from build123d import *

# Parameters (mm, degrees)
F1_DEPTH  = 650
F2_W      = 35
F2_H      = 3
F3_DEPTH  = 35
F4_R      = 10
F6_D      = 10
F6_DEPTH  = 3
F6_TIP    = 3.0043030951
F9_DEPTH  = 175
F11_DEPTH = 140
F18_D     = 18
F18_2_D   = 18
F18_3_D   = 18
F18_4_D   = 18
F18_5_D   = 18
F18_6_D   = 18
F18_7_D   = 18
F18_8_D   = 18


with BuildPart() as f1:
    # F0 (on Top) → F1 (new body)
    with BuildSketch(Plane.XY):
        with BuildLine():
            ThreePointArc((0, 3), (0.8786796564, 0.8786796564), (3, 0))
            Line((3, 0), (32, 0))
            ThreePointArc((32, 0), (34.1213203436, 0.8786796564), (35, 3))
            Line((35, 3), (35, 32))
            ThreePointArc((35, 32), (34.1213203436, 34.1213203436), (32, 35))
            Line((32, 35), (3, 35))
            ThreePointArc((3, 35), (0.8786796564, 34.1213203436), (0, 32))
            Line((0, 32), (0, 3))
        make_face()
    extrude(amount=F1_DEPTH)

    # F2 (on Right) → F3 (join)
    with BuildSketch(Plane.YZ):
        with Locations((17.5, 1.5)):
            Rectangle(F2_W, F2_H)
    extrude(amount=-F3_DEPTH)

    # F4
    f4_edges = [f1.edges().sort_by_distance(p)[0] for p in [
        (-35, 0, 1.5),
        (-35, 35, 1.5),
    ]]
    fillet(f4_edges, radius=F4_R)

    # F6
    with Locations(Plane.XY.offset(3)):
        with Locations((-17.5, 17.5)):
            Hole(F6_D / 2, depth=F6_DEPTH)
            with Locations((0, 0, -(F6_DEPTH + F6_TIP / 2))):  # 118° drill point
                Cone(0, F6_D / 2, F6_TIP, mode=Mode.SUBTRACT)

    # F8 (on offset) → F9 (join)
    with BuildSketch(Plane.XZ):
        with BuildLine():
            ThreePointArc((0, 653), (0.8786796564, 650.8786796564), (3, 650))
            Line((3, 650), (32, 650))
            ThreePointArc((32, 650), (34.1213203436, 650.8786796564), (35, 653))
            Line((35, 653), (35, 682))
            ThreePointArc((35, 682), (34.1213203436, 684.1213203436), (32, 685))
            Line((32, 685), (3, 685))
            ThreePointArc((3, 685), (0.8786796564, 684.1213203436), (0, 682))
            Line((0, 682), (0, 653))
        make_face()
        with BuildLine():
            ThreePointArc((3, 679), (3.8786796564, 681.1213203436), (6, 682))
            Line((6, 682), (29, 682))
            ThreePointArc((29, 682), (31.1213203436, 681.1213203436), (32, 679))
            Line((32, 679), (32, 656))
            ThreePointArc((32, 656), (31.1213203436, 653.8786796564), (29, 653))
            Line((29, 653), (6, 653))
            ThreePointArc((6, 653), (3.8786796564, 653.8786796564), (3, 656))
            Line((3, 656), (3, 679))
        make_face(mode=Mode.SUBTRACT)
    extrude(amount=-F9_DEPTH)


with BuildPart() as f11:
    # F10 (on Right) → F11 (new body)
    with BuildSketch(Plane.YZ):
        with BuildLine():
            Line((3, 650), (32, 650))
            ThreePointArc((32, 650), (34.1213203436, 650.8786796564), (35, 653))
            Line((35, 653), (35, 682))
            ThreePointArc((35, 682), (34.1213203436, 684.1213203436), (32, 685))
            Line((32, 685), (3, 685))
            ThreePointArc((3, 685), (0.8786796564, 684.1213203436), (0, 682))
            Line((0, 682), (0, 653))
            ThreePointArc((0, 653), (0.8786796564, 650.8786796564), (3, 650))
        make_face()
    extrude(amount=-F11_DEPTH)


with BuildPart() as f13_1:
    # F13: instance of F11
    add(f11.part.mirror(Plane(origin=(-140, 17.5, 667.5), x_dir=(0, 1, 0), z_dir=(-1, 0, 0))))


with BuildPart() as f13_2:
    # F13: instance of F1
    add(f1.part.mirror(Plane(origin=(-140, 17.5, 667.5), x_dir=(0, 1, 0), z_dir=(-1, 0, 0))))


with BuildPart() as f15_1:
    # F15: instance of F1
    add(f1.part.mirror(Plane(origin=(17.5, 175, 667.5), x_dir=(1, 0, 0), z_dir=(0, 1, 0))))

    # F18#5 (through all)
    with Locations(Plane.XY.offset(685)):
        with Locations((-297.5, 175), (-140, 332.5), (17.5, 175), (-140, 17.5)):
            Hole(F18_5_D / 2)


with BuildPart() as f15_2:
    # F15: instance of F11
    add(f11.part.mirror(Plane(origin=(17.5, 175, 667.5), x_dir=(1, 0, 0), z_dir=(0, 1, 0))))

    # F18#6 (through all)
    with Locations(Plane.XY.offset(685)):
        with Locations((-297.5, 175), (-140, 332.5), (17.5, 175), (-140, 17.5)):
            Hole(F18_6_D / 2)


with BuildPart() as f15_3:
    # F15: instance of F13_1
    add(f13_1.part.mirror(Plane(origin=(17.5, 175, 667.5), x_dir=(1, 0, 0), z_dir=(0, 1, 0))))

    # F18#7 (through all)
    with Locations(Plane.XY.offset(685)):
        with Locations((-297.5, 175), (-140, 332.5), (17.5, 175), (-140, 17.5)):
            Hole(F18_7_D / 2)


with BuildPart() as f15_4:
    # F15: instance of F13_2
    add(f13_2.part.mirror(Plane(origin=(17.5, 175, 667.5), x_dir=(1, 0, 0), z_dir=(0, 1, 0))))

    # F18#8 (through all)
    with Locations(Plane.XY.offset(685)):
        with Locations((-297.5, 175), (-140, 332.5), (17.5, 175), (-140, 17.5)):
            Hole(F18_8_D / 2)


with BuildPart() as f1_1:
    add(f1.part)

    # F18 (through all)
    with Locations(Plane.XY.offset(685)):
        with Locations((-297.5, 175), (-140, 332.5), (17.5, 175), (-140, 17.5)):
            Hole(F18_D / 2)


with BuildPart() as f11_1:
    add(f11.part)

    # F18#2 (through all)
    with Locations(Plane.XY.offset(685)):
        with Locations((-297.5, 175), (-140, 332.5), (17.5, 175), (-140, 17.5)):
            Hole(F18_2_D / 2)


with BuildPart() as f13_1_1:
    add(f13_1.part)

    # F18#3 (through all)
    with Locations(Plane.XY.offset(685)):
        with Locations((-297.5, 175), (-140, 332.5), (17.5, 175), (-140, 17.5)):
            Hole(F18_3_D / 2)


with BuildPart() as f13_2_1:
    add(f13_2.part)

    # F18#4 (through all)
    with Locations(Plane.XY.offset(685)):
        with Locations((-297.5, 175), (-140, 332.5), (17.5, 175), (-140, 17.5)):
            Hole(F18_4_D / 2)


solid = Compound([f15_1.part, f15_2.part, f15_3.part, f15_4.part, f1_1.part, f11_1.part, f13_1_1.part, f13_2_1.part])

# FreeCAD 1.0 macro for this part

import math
import FreeCAD as App
import Part
import Sketcher
Q = App.Units.Quantity


def edges_at(feature, points):
    """Names of the edges that pass closest to the given points."""
    edges = feature.Shape.Edges
    near = lambda p: min(range(len(edges)), key=lambda i: edges[i].distToShape(Part.Vertex(*p))[0])
    return sorted({f"Edge{near(p) + 1}" for p in points})

doc = App.newDocument("Part")
params = doc.addObject("Spreadsheet::Sheet", "Params")
for row, (alias, value) in enumerate([
    ("sketch1_radius", "3 mm"),
    ("sketch1_width", "29 mm"),
    ("pad1_length", "650 mm"),
    ("sketch2_width", "35 mm"),
    ("sketch2_height", "3 mm"),
    ("pad2_length", "35 mm"),
    ("fillet_radius", "10 mm"),
    ("sketch3_diameter", "10 mm"),
    ("hole_diameter", "10 mm"),
    ("hole_depth", "3 mm"),
    ("sketch4_radius", "3 mm"),
    ("sketch4_width", "29 mm"),
    ("pad3_length", "175 mm"),
    ("sketch5_radius", "3 mm"),
    ("sketch5_width", "29 mm"),
    ("pad4_length", "140 mm"),
    ("sketch6_diameter", "18 mm"),
    ("hole2_diameter", "18 mm"),
    ("sketch7_diameter", "18 mm"),
    ("hole3_diameter", "18 mm"),
    ("sketch8_diameter", "18 mm"),
    ("hole4_diameter", "18 mm"),
    ("sketch9_diameter", "18 mm"),
    ("hole5_diameter", "18 mm"),
    ("sketch10_diameter", "18 mm"),
    ("hole6_diameter", "18 mm"),
    ("sketch11_diameter", "18 mm"),
    ("hole7_diameter", "18 mm"),
    ("sketch12_diameter", "18 mm"),
    ("hole8_diameter", "18 mm"),
    ("sketch13_diameter", "18 mm"),
    ("hole9_diameter", "18 mm"),
], start=1):
    params.set(f"A{row}", alias)
    params.set(f"B{row}", "=" + value)
    params.setAlias(f"B{row}", alias)

body = doc.addObject("PartDesign::Body", "Body")

sketch1 = body.newObject("Sketcher::SketchObject", "Sketch")
sketch1.AttachmentSupport = (doc.getObject("XY_Plane"), [""])
sketch1.MapMode = "FlatFace"
sketch1.addGeometry([
    Part.ArcOfCircle(Part.Circle(App.Vector(3, 3, 0), App.Vector(0, 0, 1), 3), math.radians(180), math.radians(270)),
    Part.LineSegment(App.Vector(3, 0, 0), App.Vector(32, 0, 0)),
    Part.ArcOfCircle(Part.Circle(App.Vector(32, 3, 0), App.Vector(0, 0, 1), 3), math.radians(-90), math.radians(0)),
    Part.LineSegment(App.Vector(35, 3, 0), App.Vector(35, 32, 0)),
    Part.ArcOfCircle(Part.Circle(App.Vector(32, 32, 0), App.Vector(0, 0, 1), 3), math.radians(0), math.radians(90)),
    Part.LineSegment(App.Vector(32, 35, 0), App.Vector(3, 35, 0)),
    Part.ArcOfCircle(Part.Circle(App.Vector(3, 32, 0), App.Vector(0, 0, 1), 3), math.radians(90), math.radians(180)),
    Part.LineSegment(App.Vector(0, 32, 0), App.Vector(0, 3, 0)),
], False)
sketch1.addConstraint([
    Sketcher.Constraint("Tangent", 0, 2, 1, 1),
    Sketcher.Constraint("Tangent", 1, 2, 2, 1),
    Sketcher.Constraint("Tangent", 2, 2, 3, 1),
    Sketcher.Constraint("Tangent", 3, 2, 4, 1),
    Sketcher.Constraint("Tangent", 4, 2, 5, 1),
    Sketcher.Constraint("Tangent", 5, 2, 6, 1),
    Sketcher.Constraint("Tangent", 6, 2, 7, 1),
    Sketcher.Constraint("Tangent", 7, 2, 0, 1),
    Sketcher.Constraint("Horizontal", 1),
    Sketcher.Constraint("Vertical", 3),
    Sketcher.Constraint("Horizontal", 5),
    Sketcher.Constraint("Vertical", 7),
    Sketcher.Constraint("Equal", 0, 2),
    Sketcher.Constraint("Equal", 2, 4),
    Sketcher.Constraint("Equal", 4, 6),
    Sketcher.Constraint("PointOnObject", 0, 2, -1),
    Sketcher.Constraint("PointOnObject", 6, 2, -2),
    Sketcher.Constraint("Equal", 5, 3),
    Sketcher.Constraint("Radius", 0, Q("3 mm")),
    Sketcher.Constraint("DistanceX", 1, 1, 1, 2, Q("29 mm")),
])
sketch1.setExpression("Constraints[18]", "Params.sketch1_radius")
sketch1.setExpression("Constraints[19]", "Params.sketch1_width")
pad1 = body.newObject("PartDesign::Pad", "Pad")
pad1.Profile = sketch1
pad1.setExpression("Length", "Params.pad1_length")

sketch2 = body.newObject("Sketcher::SketchObject", "Sketch001")
sketch2.AttachmentSupport = (doc.getObject("YZ_Plane"), [""])
sketch2.MapMode = "FlatFace"
sketch2.addGeometry([
    Part.LineSegment(App.Vector(0, 3, 0), App.Vector(0, 0, 0)),
    Part.LineSegment(App.Vector(0, 0, 0), App.Vector(35, 0, 0)),
    Part.LineSegment(App.Vector(35, 0, 0), App.Vector(35, 3, 0)),
    Part.LineSegment(App.Vector(35, 3, 0), App.Vector(0, 3, 0)),
], False)
sketch2.addConstraint([
    Sketcher.Constraint("Coincident", 0, 2, 1, 1),
    Sketcher.Constraint("Coincident", 1, 2, 2, 1),
    Sketcher.Constraint("Coincident", 2, 2, 3, 1),
    Sketcher.Constraint("Coincident", 3, 2, 0, 1),
    Sketcher.Constraint("Vertical", 0),
    Sketcher.Constraint("Horizontal", 1),
    Sketcher.Constraint("Vertical", 2),
    Sketcher.Constraint("Horizontal", 3),
    Sketcher.Constraint("Coincident", 0, 2, -1, 1),
    Sketcher.Constraint("DistanceX", 1, 1, 1, 2, Q("35 mm")),
    Sketcher.Constraint("DistanceY", 0, 2, 0, 1, Q("3 mm")),
])
sketch2.setExpression("Constraints[9]", "Params.sketch2_width")
sketch2.setExpression("Constraints[10]", "Params.sketch2_height")
pad2 = body.newObject("PartDesign::Pad", "Pad001")
pad2.Profile = sketch2
pad2.setExpression("Length", "Params.pad2_length")
pad2.Reversed = True
doc.recompute()

fillet = body.newObject("PartDesign::Fillet", "Fillet")
fillet.Base = (pad2, edges_at(pad2, [(-35, 0, 1.5), (-35, 35, 1.5)]))
fillet.setExpression("Radius", "Params.fillet_radius")

sketch3 = body.newObject("Sketcher::SketchObject", "Sketch002")
sketch3.AttachmentSupport = (doc.getObject("XY_Plane"), [""])
sketch3.MapMode = "FlatFace"
sketch3.AttachmentOffset = App.Placement(App.Vector(0, 0, 3), App.Rotation())
sketch3.addGeometry(Part.Circle(App.Vector(-18, 18, 0), App.Vector(0, 0, 1), 5), False)
sketch3.addConstraint([
    Sketcher.Constraint("Diameter", 0, Q("10 mm")),
    Sketcher.Constraint("DistanceX", 0, 3, -1, 1, Q("17.5 mm")),
    Sketcher.Constraint("DistanceY", -1, 1, 0, 3, Q("17.5 mm")),
])
sketch3.setExpression("Constraints[0]", "Params.sketch3_diameter")
doc.recompute()
hole = body.newObject("PartDesign::Hole", "Hole")
hole.Profile = sketch3
hole.ThreadType = "None"
hole.setExpression("Diameter", "Params.hole_diameter")
hole.DepthType = "Dimension"
hole.setExpression("Depth", "Params.hole_depth")
hole.DrillPoint = "Angled"
hole.DrillPointAngle = 118

sketch4 = body.newObject("Sketcher::SketchObject", "Sketch003")
sketch4.AttachmentSupport = (doc.getObject("XZ_Plane"), [""])
sketch4.MapMode = "FlatFace"
sketch4.addGeometry([
    Part.ArcOfCircle(Part.Circle(App.Vector(3, 653, 0), App.Vector(0, 0, 1), 3), math.radians(180), math.radians(270)),
    Part.LineSegment(App.Vector(3, 650, 0), App.Vector(32, 650, 0)),
    Part.ArcOfCircle(Part.Circle(App.Vector(32, 653, 0), App.Vector(0, 0, 1), 3), math.radians(-90), math.radians(0)),
    Part.LineSegment(App.Vector(35, 653, 0), App.Vector(35, 682, 0)),
    Part.ArcOfCircle(Part.Circle(App.Vector(32, 682, 0), App.Vector(0, 0, 1), 3), math.radians(0), math.radians(90)),
    Part.LineSegment(App.Vector(32, 685, 0), App.Vector(3, 685, 0)),
    Part.ArcOfCircle(Part.Circle(App.Vector(3, 682, 0), App.Vector(0, 0, 1), 3), math.radians(90), math.radians(180)),
    Part.LineSegment(App.Vector(0, 682, 0), App.Vector(0, 653, 0)),
    Part.LineSegment(App.Vector(3, 656, 0), App.Vector(3, 679, 0)),
    Part.ArcOfCircle(Part.Circle(App.Vector(6, 679, 0), App.Vector(0, 0, 1), 3), math.radians(90), math.radians(180)),
    Part.LineSegment(App.Vector(6, 682, 0), App.Vector(29, 682, 0)),
    Part.ArcOfCircle(Part.Circle(App.Vector(29, 679, 0), App.Vector(0, 0, 1), 3), math.radians(0), math.radians(90)),
    Part.LineSegment(App.Vector(32, 679, 0), App.Vector(32, 656, 0)),
    Part.ArcOfCircle(Part.Circle(App.Vector(29, 656, 0), App.Vector(0, 0, 1), 3), math.radians(-90), math.radians(0)),
    Part.LineSegment(App.Vector(29, 653, 0), App.Vector(6, 653, 0)),
    Part.ArcOfCircle(Part.Circle(App.Vector(6, 656, 0), App.Vector(0, 0, 1), 3), math.radians(180), math.radians(270)),
], False)
sketch4.addConstraint([
    Sketcher.Constraint("Tangent", 0, 2, 1, 1),
    Sketcher.Constraint("Tangent", 1, 2, 2, 1),
    Sketcher.Constraint("Tangent", 2, 2, 3, 1),
    Sketcher.Constraint("Tangent", 3, 2, 4, 1),
    Sketcher.Constraint("Tangent", 4, 2, 5, 1),
    Sketcher.Constraint("Tangent", 5, 2, 6, 1),
    Sketcher.Constraint("Tangent", 6, 2, 7, 1),
    Sketcher.Constraint("Tangent", 7, 2, 0, 1),
    Sketcher.Constraint("Tangent", 8, 2, 9, 2),
    Sketcher.Constraint("Tangent", 9, 1, 10, 1),
    Sketcher.Constraint("Tangent", 10, 2, 11, 2),
    Sketcher.Constraint("Tangent", 11, 1, 12, 1),
    Sketcher.Constraint("Tangent", 12, 2, 13, 2),
    Sketcher.Constraint("Tangent", 13, 1, 14, 1),
    Sketcher.Constraint("Tangent", 14, 2, 15, 2),
    Sketcher.Constraint("Tangent", 15, 1, 8, 1),
    Sketcher.Constraint("Horizontal", 1),
    Sketcher.Constraint("Vertical", 3),
    Sketcher.Constraint("Horizontal", 5),
    Sketcher.Constraint("Vertical", 7),
    Sketcher.Constraint("Vertical", 8),
    Sketcher.Constraint("Horizontal", 10),
    Sketcher.Constraint("Vertical", 12),
    Sketcher.Constraint("Horizontal", 14),
    Sketcher.Constraint("Equal", 0, 2),
    Sketcher.Constraint("Equal", 2, 4),
    Sketcher.Constraint("Equal", 4, 6),
    Sketcher.Constraint("Equal", 6, 9),
    Sketcher.Constraint("Equal", 9, 11),
    Sketcher.Constraint("Equal", 11, 13),
    Sketcher.Constraint("Equal", 13, 15),
    Sketcher.Constraint("PointOnObject", 6, 2, -2),
    Sketcher.Constraint("Horizontal", 6, 2, 9, 1),
    Sketcher.Constraint("Horizontal", 7, 2, 13, 1),
    Sketcher.Constraint("Vertical", 5, 2, 8, 2),
    Sketcher.Constraint("Vertical", 4, 2, 11, 1),
    Sketcher.Constraint("Equal", 5, 3),
    Sketcher.Constraint("Radius", 0, Q("3 mm")),
    Sketcher.Constraint("DistanceX", 1, 1, 1, 2, Q("29 mm")),
    Sketcher.Constraint("DistanceY", -1, 1, 0, 3, Q("653 mm")),
])
sketch4.setExpression("Constraints[37]", "Params.sketch4_radius")
sketch4.setExpression("Constraints[38]", "Params.sketch4_width")
pad3 = body.newObject("PartDesign::Pad", "Pad002")
pad3.Profile = sketch4
pad3.setExpression("Length", "Params.pad3_length")
pad3.Reversed = True
body2 = doc.addObject("PartDesign::Body", "Body001")

sketch5 = body2.newObject("Sketcher::SketchObject", "Sketch004")
sketch5.AttachmentSupport = (doc.getObject("YZ_Plane001"), [""])
sketch5.MapMode = "FlatFace"
sketch5.addGeometry([
    Part.LineSegment(App.Vector(3, 650, 0), App.Vector(32, 650, 0)),
    Part.ArcOfCircle(Part.Circle(App.Vector(32, 653, 0), App.Vector(0, 0, 1), 3), math.radians(-90), math.radians(0)),
    Part.LineSegment(App.Vector(35, 653, 0), App.Vector(35, 682, 0)),
    Part.ArcOfCircle(Part.Circle(App.Vector(32, 682, 0), App.Vector(0, 0, 1), 3), math.radians(0), math.radians(90)),
    Part.LineSegment(App.Vector(32, 685, 0), App.Vector(3, 685, 0)),
    Part.ArcOfCircle(Part.Circle(App.Vector(3, 682, 0), App.Vector(0, 0, 1), 3), math.radians(90), math.radians(180)),
    Part.LineSegment(App.Vector(0, 682, 0), App.Vector(0, 653, 0)),
    Part.ArcOfCircle(Part.Circle(App.Vector(3, 653, 0), App.Vector(0, 0, 1), 3), math.radians(180), math.radians(270)),
], False)
sketch5.addConstraint([
    Sketcher.Constraint("Tangent", 0, 2, 1, 1),
    Sketcher.Constraint("Tangent", 1, 2, 2, 1),
    Sketcher.Constraint("Tangent", 2, 2, 3, 1),
    Sketcher.Constraint("Tangent", 3, 2, 4, 1),
    Sketcher.Constraint("Tangent", 4, 2, 5, 1),
    Sketcher.Constraint("Tangent", 5, 2, 6, 1),
    Sketcher.Constraint("Tangent", 6, 2, 7, 1),
    Sketcher.Constraint("Tangent", 7, 2, 0, 1),
    Sketcher.Constraint("Horizontal", 0),
    Sketcher.Constraint("Vertical", 2),
    Sketcher.Constraint("Horizontal", 4),
    Sketcher.Constraint("Vertical", 6),
    Sketcher.Constraint("Equal", 1, 3),
    Sketcher.Constraint("Equal", 3, 5),
    Sketcher.Constraint("Equal", 5, 7),
    Sketcher.Constraint("PointOnObject", 5, 2, -2),
    Sketcher.Constraint("Equal", 4, 2),
    Sketcher.Constraint("Radius", 1, Q("3 mm")),
    Sketcher.Constraint("DistanceX", 0, 1, 0, 2, Q("29 mm")),
    Sketcher.Constraint("DistanceY", -1, 1, 1, 3, Q("653 mm")),
])
sketch5.setExpression("Constraints[17]", "Params.sketch5_radius")
sketch5.setExpression("Constraints[18]", "Params.sketch5_width")
pad4 = body2.newObject("PartDesign::Pad", "Pad003")
pad4.Profile = sketch5
pad4.setExpression("Length", "Params.pad4_length")
pad4.Reversed = True
body3 = doc.addObject("PartDesign::Body", "Body002")
doc.recompute()

mirroring = doc.addObject("Part::Mirroring", "Mirroring")
mirroring.Source = body2
mirroring.Base = App.Vector(-140, 17.5, 667.5)
mirroring.Normal = App.Vector(-1, 0, 0)
body3.BaseFeature = mirroring
doc.recompute()
body4 = doc.addObject("PartDesign::Body", "Body003")
doc.recompute()

mirroring2 = doc.addObject("Part::Mirroring", "Mirroring001")
mirroring2.Source = body
mirroring2.Base = App.Vector(-140, 17.5, 667.5)
mirroring2.Normal = App.Vector(-1, 0, 0)
body4.BaseFeature = mirroring2
doc.recompute()
body5 = doc.addObject("PartDesign::Body", "Body004")
doc.recompute()

mirroring3 = doc.addObject("Part::Mirroring", "Mirroring002")
mirroring3.Source = body
mirroring3.Base = App.Vector(17.5, 175, 667.5)
mirroring3.Normal = App.Vector(0, 1, 0)
body5.BaseFeature = mirroring3
doc.recompute()

sketch6 = body5.newObject("Sketcher::SketchObject", "Sketch005")
sketch6.AttachmentSupport = (doc.getObject("XY_Plane004"), [""])
sketch6.MapMode = "FlatFace"
sketch6.AttachmentOffset = App.Placement(App.Vector(0, 0, 685), App.Rotation())
sketch6.addGeometry([
    Part.Circle(App.Vector(-298, 175, 0), App.Vector(0, 0, 1), 9),
    Part.Circle(App.Vector(-140, 332, 0), App.Vector(0, 0, 1), 9),
    Part.Circle(App.Vector(18, 175, 0), App.Vector(0, 0, 1), 9),
    Part.Circle(App.Vector(-140, 18, 0), App.Vector(0, 0, 1), 9),
], False)
sketch6.addConstraint([
    Sketcher.Constraint("Equal", 0, 1),
    Sketcher.Constraint("Equal", 1, 2),
    Sketcher.Constraint("Equal", 2, 3),
    Sketcher.Constraint("Horizontal", 0, 3, 2, 3),
    Sketcher.Constraint("Vertical", 1, 3, 3, 3),
    Sketcher.Constraint("Diameter", 0, Q("18 mm")),
    Sketcher.Constraint("DistanceY", -1, 1, 0, 3, Q("175 mm")),
    Sketcher.Constraint("DistanceX", 1, 3, -1, 1, Q("140 mm")),
    Sketcher.Constraint("DistanceX", 0, 3, 2, 3, Q("315 mm")),
    Sketcher.Constraint("DistanceY", 3, 3, 1, 3, Q("315 mm")),
    Sketcher.Constraint("DistanceX", 0, 3, -1, 1, Q("297.5 mm")),
    Sketcher.Constraint("DistanceY", -1, 1, 1, 3, Q("332.5 mm")),
])
sketch6.setExpression("Constraints[5]", "Params.sketch6_diameter")
doc.recompute()
hole2 = body5.newObject("PartDesign::Hole", "Hole001")
hole2.Profile = sketch6
hole2.ThreadType = "None"
hole2.setExpression("Diameter", "Params.hole2_diameter")
hole2.DepthType = "ThroughAll"
body6 = doc.addObject("PartDesign::Body", "Body005")
doc.recompute()

mirroring4 = doc.addObject("Part::Mirroring", "Mirroring003")
mirroring4.Source = body2
mirroring4.Base = App.Vector(17.5, 175, 667.5)
mirroring4.Normal = App.Vector(0, 1, 0)
body6.BaseFeature = mirroring4
doc.recompute()

sketch7 = body6.newObject("Sketcher::SketchObject", "Sketch006")
sketch7.AttachmentSupport = (doc.getObject("XY_Plane005"), [""])
sketch7.MapMode = "FlatFace"
sketch7.AttachmentOffset = App.Placement(App.Vector(0, 0, 685), App.Rotation())
sketch7.addGeometry([
    Part.Circle(App.Vector(-298, 175, 0), App.Vector(0, 0, 1), 9),
    Part.Circle(App.Vector(-140, 332, 0), App.Vector(0, 0, 1), 9),
    Part.Circle(App.Vector(18, 175, 0), App.Vector(0, 0, 1), 9),
    Part.Circle(App.Vector(-140, 18, 0), App.Vector(0, 0, 1), 9),
], False)
sketch7.addConstraint([
    Sketcher.Constraint("Equal", 0, 1),
    Sketcher.Constraint("Equal", 1, 2),
    Sketcher.Constraint("Equal", 2, 3),
    Sketcher.Constraint("Horizontal", 0, 3, 2, 3),
    Sketcher.Constraint("Vertical", 1, 3, 3, 3),
    Sketcher.Constraint("Diameter", 0, Q("18 mm")),
    Sketcher.Constraint("DistanceY", -1, 1, 0, 3, Q("175 mm")),
    Sketcher.Constraint("DistanceX", 1, 3, -1, 1, Q("140 mm")),
    Sketcher.Constraint("DistanceX", 0, 3, 2, 3, Q("315 mm")),
    Sketcher.Constraint("DistanceY", 3, 3, 1, 3, Q("315 mm")),
    Sketcher.Constraint("DistanceX", 0, 3, -1, 1, Q("297.5 mm")),
    Sketcher.Constraint("DistanceY", -1, 1, 1, 3, Q("332.5 mm")),
])
sketch7.setExpression("Constraints[5]", "Params.sketch7_diameter")
doc.recompute()
hole3 = body6.newObject("PartDesign::Hole", "Hole002")
hole3.Profile = sketch7
hole3.ThreadType = "None"
hole3.setExpression("Diameter", "Params.hole3_diameter")
hole3.DepthType = "ThroughAll"
body7 = doc.addObject("PartDesign::Body", "Body006")
doc.recompute()

mirroring5 = doc.addObject("Part::Mirroring", "Mirroring004")
mirroring5.Source = body3
mirroring5.Base = App.Vector(17.5, 175, 667.5)
mirroring5.Normal = App.Vector(0, 1, 0)
body7.BaseFeature = mirroring5
doc.recompute()

sketch8 = body7.newObject("Sketcher::SketchObject", "Sketch007")
sketch8.AttachmentSupport = (doc.getObject("XY_Plane006"), [""])
sketch8.MapMode = "FlatFace"
sketch8.AttachmentOffset = App.Placement(App.Vector(0, 0, 685), App.Rotation())
sketch8.addGeometry([
    Part.Circle(App.Vector(-298, 175, 0), App.Vector(0, 0, 1), 9),
    Part.Circle(App.Vector(-140, 332, 0), App.Vector(0, 0, 1), 9),
    Part.Circle(App.Vector(18, 175, 0), App.Vector(0, 0, 1), 9),
    Part.Circle(App.Vector(-140, 18, 0), App.Vector(0, 0, 1), 9),
], False)
sketch8.addConstraint([
    Sketcher.Constraint("Equal", 0, 1),
    Sketcher.Constraint("Equal", 1, 2),
    Sketcher.Constraint("Equal", 2, 3),
    Sketcher.Constraint("Horizontal", 0, 3, 2, 3),
    Sketcher.Constraint("Vertical", 1, 3, 3, 3),
    Sketcher.Constraint("Diameter", 0, Q("18 mm")),
    Sketcher.Constraint("DistanceY", -1, 1, 0, 3, Q("175 mm")),
    Sketcher.Constraint("DistanceX", 1, 3, -1, 1, Q("140 mm")),
    Sketcher.Constraint("DistanceX", 0, 3, 2, 3, Q("315 mm")),
    Sketcher.Constraint("DistanceY", 3, 3, 1, 3, Q("315 mm")),
    Sketcher.Constraint("DistanceX", 0, 3, -1, 1, Q("297.5 mm")),
    Sketcher.Constraint("DistanceY", -1, 1, 1, 3, Q("332.5 mm")),
])
sketch8.setExpression("Constraints[5]", "Params.sketch8_diameter")
doc.recompute()
hole4 = body7.newObject("PartDesign::Hole", "Hole003")
hole4.Profile = sketch8
hole4.ThreadType = "None"
hole4.setExpression("Diameter", "Params.hole4_diameter")
hole4.DepthType = "ThroughAll"
body8 = doc.addObject("PartDesign::Body", "Body007")
doc.recompute()

mirroring6 = doc.addObject("Part::Mirroring", "Mirroring005")
mirroring6.Source = body4
mirroring6.Base = App.Vector(17.5, 175, 667.5)
mirroring6.Normal = App.Vector(0, 1, 0)
body8.BaseFeature = mirroring6
doc.recompute()

sketch9 = body8.newObject("Sketcher::SketchObject", "Sketch008")
sketch9.AttachmentSupport = (doc.getObject("XY_Plane007"), [""])
sketch9.MapMode = "FlatFace"
sketch9.AttachmentOffset = App.Placement(App.Vector(0, 0, 685), App.Rotation())
sketch9.addGeometry([
    Part.Circle(App.Vector(-298, 175, 0), App.Vector(0, 0, 1), 9),
    Part.Circle(App.Vector(-140, 332, 0), App.Vector(0, 0, 1), 9),
    Part.Circle(App.Vector(18, 175, 0), App.Vector(0, 0, 1), 9),
    Part.Circle(App.Vector(-140, 18, 0), App.Vector(0, 0, 1), 9),
], False)
sketch9.addConstraint([
    Sketcher.Constraint("Equal", 0, 1),
    Sketcher.Constraint("Equal", 1, 2),
    Sketcher.Constraint("Equal", 2, 3),
    Sketcher.Constraint("Horizontal", 0, 3, 2, 3),
    Sketcher.Constraint("Vertical", 1, 3, 3, 3),
    Sketcher.Constraint("Diameter", 0, Q("18 mm")),
    Sketcher.Constraint("DistanceY", -1, 1, 0, 3, Q("175 mm")),
    Sketcher.Constraint("DistanceX", 1, 3, -1, 1, Q("140 mm")),
    Sketcher.Constraint("DistanceX", 0, 3, 2, 3, Q("315 mm")),
    Sketcher.Constraint("DistanceY", 3, 3, 1, 3, Q("315 mm")),
    Sketcher.Constraint("DistanceX", 0, 3, -1, 1, Q("297.5 mm")),
    Sketcher.Constraint("DistanceY", -1, 1, 1, 3, Q("332.5 mm")),
])
sketch9.setExpression("Constraints[5]", "Params.sketch9_diameter")
doc.recompute()
hole5 = body8.newObject("PartDesign::Hole", "Hole004")
hole5.Profile = sketch9
hole5.ThreadType = "None"
hole5.setExpression("Diameter", "Params.hole5_diameter")
hole5.DepthType = "ThroughAll"

sketch10 = body.newObject("Sketcher::SketchObject", "Sketch009")
sketch10.AttachmentSupport = (doc.getObject("XY_Plane"), [""])
sketch10.MapMode = "FlatFace"
sketch10.AttachmentOffset = App.Placement(App.Vector(0, 0, 685), App.Rotation())
sketch10.addGeometry([
    Part.Circle(App.Vector(-298, 175, 0), App.Vector(0, 0, 1), 9),
    Part.Circle(App.Vector(-140, 332, 0), App.Vector(0, 0, 1), 9),
    Part.Circle(App.Vector(18, 175, 0), App.Vector(0, 0, 1), 9),
    Part.Circle(App.Vector(-140, 18, 0), App.Vector(0, 0, 1), 9),
], False)
sketch10.addConstraint([
    Sketcher.Constraint("Equal", 0, 1),
    Sketcher.Constraint("Equal", 1, 2),
    Sketcher.Constraint("Equal", 2, 3),
    Sketcher.Constraint("Horizontal", 0, 3, 2, 3),
    Sketcher.Constraint("Vertical", 1, 3, 3, 3),
    Sketcher.Constraint("Diameter", 0, Q("18 mm")),
    Sketcher.Constraint("DistanceY", -1, 1, 0, 3, Q("175 mm")),
    Sketcher.Constraint("DistanceX", 1, 3, -1, 1, Q("140 mm")),
    Sketcher.Constraint("DistanceX", 0, 3, 2, 3, Q("315 mm")),
    Sketcher.Constraint("DistanceY", 3, 3, 1, 3, Q("315 mm")),
    Sketcher.Constraint("DistanceX", 0, 3, -1, 1, Q("297.5 mm")),
    Sketcher.Constraint("DistanceY", -1, 1, 1, 3, Q("332.5 mm")),
])
sketch10.setExpression("Constraints[5]", "Params.sketch10_diameter")
doc.recompute()
hole6 = body.newObject("PartDesign::Hole", "Hole005")
hole6.Profile = sketch10
hole6.ThreadType = "None"
hole6.setExpression("Diameter", "Params.hole6_diameter")
hole6.DepthType = "ThroughAll"

sketch11 = body2.newObject("Sketcher::SketchObject", "Sketch010")
sketch11.AttachmentSupport = (doc.getObject("XY_Plane001"), [""])
sketch11.MapMode = "FlatFace"
sketch11.AttachmentOffset = App.Placement(App.Vector(0, 0, 685), App.Rotation())
sketch11.addGeometry([
    Part.Circle(App.Vector(-298, 175, 0), App.Vector(0, 0, 1), 9),
    Part.Circle(App.Vector(-140, 332, 0), App.Vector(0, 0, 1), 9),
    Part.Circle(App.Vector(18, 175, 0), App.Vector(0, 0, 1), 9),
    Part.Circle(App.Vector(-140, 18, 0), App.Vector(0, 0, 1), 9),
], False)
sketch11.addConstraint([
    Sketcher.Constraint("Equal", 0, 1),
    Sketcher.Constraint("Equal", 1, 2),
    Sketcher.Constraint("Equal", 2, 3),
    Sketcher.Constraint("Horizontal", 0, 3, 2, 3),
    Sketcher.Constraint("Vertical", 1, 3, 3, 3),
    Sketcher.Constraint("Diameter", 0, Q("18 mm")),
    Sketcher.Constraint("DistanceY", -1, 1, 0, 3, Q("175 mm")),
    Sketcher.Constraint("DistanceX", 1, 3, -1, 1, Q("140 mm")),
    Sketcher.Constraint("DistanceX", 0, 3, 2, 3, Q("315 mm")),
    Sketcher.Constraint("DistanceY", 3, 3, 1, 3, Q("315 mm")),
    Sketcher.Constraint("DistanceX", 0, 3, -1, 1, Q("297.5 mm")),
    Sketcher.Constraint("DistanceY", -1, 1, 1, 3, Q("332.5 mm")),
])
sketch11.setExpression("Constraints[5]", "Params.sketch11_diameter")
doc.recompute()
hole7 = body2.newObject("PartDesign::Hole", "Hole006")
hole7.Profile = sketch11
hole7.ThreadType = "None"
hole7.setExpression("Diameter", "Params.hole7_diameter")
hole7.DepthType = "ThroughAll"

sketch12 = body3.newObject("Sketcher::SketchObject", "Sketch011")
sketch12.AttachmentSupport = (doc.getObject("XY_Plane002"), [""])
sketch12.MapMode = "FlatFace"
sketch12.AttachmentOffset = App.Placement(App.Vector(0, 0, 685), App.Rotation())
sketch12.addGeometry([
    Part.Circle(App.Vector(-298, 175, 0), App.Vector(0, 0, 1), 9),
    Part.Circle(App.Vector(-140, 332, 0), App.Vector(0, 0, 1), 9),
    Part.Circle(App.Vector(18, 175, 0), App.Vector(0, 0, 1), 9),
    Part.Circle(App.Vector(-140, 18, 0), App.Vector(0, 0, 1), 9),
], False)
sketch12.addConstraint([
    Sketcher.Constraint("Equal", 0, 1),
    Sketcher.Constraint("Equal", 1, 2),
    Sketcher.Constraint("Equal", 2, 3),
    Sketcher.Constraint("Horizontal", 0, 3, 2, 3),
    Sketcher.Constraint("Vertical", 1, 3, 3, 3),
    Sketcher.Constraint("Diameter", 0, Q("18 mm")),
    Sketcher.Constraint("DistanceY", -1, 1, 0, 3, Q("175 mm")),
    Sketcher.Constraint("DistanceX", 1, 3, -1, 1, Q("140 mm")),
    Sketcher.Constraint("DistanceX", 0, 3, 2, 3, Q("315 mm")),
    Sketcher.Constraint("DistanceY", 3, 3, 1, 3, Q("315 mm")),
    Sketcher.Constraint("DistanceX", 0, 3, -1, 1, Q("297.5 mm")),
    Sketcher.Constraint("DistanceY", -1, 1, 1, 3, Q("332.5 mm")),
])
sketch12.setExpression("Constraints[5]", "Params.sketch12_diameter")
doc.recompute()
hole8 = body3.newObject("PartDesign::Hole", "Hole007")
hole8.Profile = sketch12
hole8.ThreadType = "None"
hole8.setExpression("Diameter", "Params.hole8_diameter")
hole8.DepthType = "ThroughAll"

sketch13 = body4.newObject("Sketcher::SketchObject", "Sketch012")
sketch13.AttachmentSupport = (doc.getObject("XY_Plane003"), [""])
sketch13.MapMode = "FlatFace"
sketch13.AttachmentOffset = App.Placement(App.Vector(0, 0, 685), App.Rotation())
sketch13.addGeometry([
    Part.Circle(App.Vector(-298, 175, 0), App.Vector(0, 0, 1), 9),
    Part.Circle(App.Vector(-140, 332, 0), App.Vector(0, 0, 1), 9),
    Part.Circle(App.Vector(18, 175, 0), App.Vector(0, 0, 1), 9),
    Part.Circle(App.Vector(-140, 18, 0), App.Vector(0, 0, 1), 9),
], False)
sketch13.addConstraint([
    Sketcher.Constraint("Equal", 0, 1),
    Sketcher.Constraint("Equal", 1, 2),
    Sketcher.Constraint("Equal", 2, 3),
    Sketcher.Constraint("Horizontal", 0, 3, 2, 3),
    Sketcher.Constraint("Vertical", 1, 3, 3, 3),
    Sketcher.Constraint("Diameter", 0, Q("18 mm")),
    Sketcher.Constraint("DistanceY", -1, 1, 0, 3, Q("175 mm")),
    Sketcher.Constraint("DistanceX", 1, 3, -1, 1, Q("140 mm")),
    Sketcher.Constraint("DistanceX", 0, 3, 2, 3, Q("315 mm")),
    Sketcher.Constraint("DistanceY", 3, 3, 1, 3, Q("315 mm")),
    Sketcher.Constraint("DistanceX", 0, 3, -1, 1, Q("297.5 mm")),
    Sketcher.Constraint("DistanceY", -1, 1, 1, 3, Q("332.5 mm")),
])
sketch13.setExpression("Constraints[5]", "Params.sketch13_diameter")
doc.recompute()
hole9 = body4.newObject("PartDesign::Hole", "Hole008")
hole9.Profile = sketch13
hole9.ThreadType = "None"
hole9.setExpression("Diameter", "Params.hole9_diameter")
hole9.DepthType = "ThroughAll"
mirroring.Visibility = False
mirroring2.Visibility = False
mirroring3.Visibility = False
mirroring4.Visibility = False
mirroring5.Visibility = False
mirroring6.Visibility = False

doc.recompute()
